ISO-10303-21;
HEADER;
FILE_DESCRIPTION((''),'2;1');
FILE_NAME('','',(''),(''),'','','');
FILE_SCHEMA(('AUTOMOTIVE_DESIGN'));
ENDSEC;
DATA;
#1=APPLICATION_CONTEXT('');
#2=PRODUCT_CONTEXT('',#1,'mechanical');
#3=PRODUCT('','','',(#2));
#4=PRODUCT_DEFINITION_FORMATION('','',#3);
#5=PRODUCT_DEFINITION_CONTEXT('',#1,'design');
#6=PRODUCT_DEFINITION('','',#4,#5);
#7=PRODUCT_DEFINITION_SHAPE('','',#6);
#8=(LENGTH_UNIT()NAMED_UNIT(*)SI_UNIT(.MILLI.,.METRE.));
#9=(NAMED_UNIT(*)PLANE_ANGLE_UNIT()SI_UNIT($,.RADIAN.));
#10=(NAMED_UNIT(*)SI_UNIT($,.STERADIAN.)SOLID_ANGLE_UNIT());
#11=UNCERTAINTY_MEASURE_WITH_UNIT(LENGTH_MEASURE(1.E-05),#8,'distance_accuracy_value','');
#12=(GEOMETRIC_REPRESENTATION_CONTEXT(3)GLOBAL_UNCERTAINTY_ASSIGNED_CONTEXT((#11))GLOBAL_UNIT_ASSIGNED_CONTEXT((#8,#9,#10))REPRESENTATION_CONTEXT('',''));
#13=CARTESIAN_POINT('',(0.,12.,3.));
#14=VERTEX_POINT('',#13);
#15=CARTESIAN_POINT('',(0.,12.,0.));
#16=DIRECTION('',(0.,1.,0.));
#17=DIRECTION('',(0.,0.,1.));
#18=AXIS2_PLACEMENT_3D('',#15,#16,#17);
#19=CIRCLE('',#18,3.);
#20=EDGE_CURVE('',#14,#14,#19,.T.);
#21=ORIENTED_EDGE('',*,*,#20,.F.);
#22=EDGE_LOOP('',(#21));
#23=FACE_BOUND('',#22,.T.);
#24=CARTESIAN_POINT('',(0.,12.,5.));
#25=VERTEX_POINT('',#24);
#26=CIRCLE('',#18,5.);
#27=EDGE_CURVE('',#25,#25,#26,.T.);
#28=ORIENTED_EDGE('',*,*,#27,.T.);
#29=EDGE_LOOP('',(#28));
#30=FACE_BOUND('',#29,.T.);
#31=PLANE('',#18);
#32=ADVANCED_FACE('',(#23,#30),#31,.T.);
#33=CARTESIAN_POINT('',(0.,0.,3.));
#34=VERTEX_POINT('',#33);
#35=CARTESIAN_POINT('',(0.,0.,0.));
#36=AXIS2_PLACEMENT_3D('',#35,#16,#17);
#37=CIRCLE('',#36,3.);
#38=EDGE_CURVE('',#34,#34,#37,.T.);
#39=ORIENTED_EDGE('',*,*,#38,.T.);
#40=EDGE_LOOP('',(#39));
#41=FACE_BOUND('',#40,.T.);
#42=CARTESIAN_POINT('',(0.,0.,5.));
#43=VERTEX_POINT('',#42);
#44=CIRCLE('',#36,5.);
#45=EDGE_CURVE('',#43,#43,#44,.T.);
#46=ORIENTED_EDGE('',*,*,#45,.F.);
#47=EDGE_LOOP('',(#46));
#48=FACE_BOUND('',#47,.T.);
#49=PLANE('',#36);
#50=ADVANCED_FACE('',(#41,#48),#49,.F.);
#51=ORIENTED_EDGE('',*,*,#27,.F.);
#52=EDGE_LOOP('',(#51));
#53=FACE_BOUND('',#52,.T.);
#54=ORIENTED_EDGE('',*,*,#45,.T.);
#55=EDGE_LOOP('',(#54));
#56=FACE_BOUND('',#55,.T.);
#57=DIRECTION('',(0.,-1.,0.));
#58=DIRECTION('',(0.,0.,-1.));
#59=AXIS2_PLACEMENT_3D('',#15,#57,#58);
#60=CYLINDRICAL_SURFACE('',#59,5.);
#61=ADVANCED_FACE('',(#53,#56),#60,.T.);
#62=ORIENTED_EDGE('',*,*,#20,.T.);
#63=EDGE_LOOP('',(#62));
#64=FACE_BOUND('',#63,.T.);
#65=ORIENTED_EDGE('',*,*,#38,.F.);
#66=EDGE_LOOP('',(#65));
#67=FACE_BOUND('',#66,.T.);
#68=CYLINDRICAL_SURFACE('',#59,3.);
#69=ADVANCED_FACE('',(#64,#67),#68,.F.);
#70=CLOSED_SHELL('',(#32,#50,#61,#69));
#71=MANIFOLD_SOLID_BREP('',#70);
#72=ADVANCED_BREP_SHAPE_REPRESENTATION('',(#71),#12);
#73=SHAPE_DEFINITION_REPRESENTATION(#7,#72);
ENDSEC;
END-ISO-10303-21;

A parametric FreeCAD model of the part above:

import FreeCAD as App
import Part
import Sketcher
from FreeCAD import Vector
Q = App.Units.Quantity

doc = App.newDocument("Part")
params = doc.addObject("Spreadsheet::Sheet", "Params")
for row, (alias, value) in enumerate([
    ("sketch1_diameter", "10 mm"),
    ("sketch1_diameter2", "6 mm"),
    ("pad1_length", "12 mm"),
], start=1):
    params.set(f"A{row}", alias)
    params.set(f"B{row}", "=" + value)
    params.setAlias(f"B{row}", alias)

body = doc.addObject("PartDesign::Body", "Body")

# Sketch on XZ plane
sketch1 = doc.addObject("Sketcher::SketchObject", "Sketch")
body.addObject(sketch1)
sketch1.AttachmentSupport = (doc.XZ_Plane, [""])
sketch1.MapMode = "FlatFace"
sketch1.addGeometry(Part.Circle(Vector(0, 0, 0), Vector(0, 0, 1), 5), False)
sketch1.addGeometry(Part.Circle(Vector(0, 0, 0), Vector(0, 0, 1), 3), False)
sketch1.addConstraint(Sketcher.Constraint("Coincident", 0, 3, -1, 1))
sketch1.addConstraint(Sketcher.Constraint("Coincident", 1, 3, -1, 1))
sketch1.addConstraint(Sketcher.Constraint("Diameter", 0, Q("10 mm")))
sketch1.addConstraint(Sketcher.Constraint("Diameter", 1, Q("6 mm")))
sketch1.setExpression("Constraints[2]", "Params.sketch1_diameter")
sketch1.setExpression("Constraints[3]", "Params.sketch1_diameter2")
pad1 = doc.addObject("PartDesign::Pad", "Pad")
body.addObject(pad1)
pad1.Profile = sketch1
pad1.setExpression("Length", "Params.pad1_length")
pad1.Reversed = True

doc.recompute()
